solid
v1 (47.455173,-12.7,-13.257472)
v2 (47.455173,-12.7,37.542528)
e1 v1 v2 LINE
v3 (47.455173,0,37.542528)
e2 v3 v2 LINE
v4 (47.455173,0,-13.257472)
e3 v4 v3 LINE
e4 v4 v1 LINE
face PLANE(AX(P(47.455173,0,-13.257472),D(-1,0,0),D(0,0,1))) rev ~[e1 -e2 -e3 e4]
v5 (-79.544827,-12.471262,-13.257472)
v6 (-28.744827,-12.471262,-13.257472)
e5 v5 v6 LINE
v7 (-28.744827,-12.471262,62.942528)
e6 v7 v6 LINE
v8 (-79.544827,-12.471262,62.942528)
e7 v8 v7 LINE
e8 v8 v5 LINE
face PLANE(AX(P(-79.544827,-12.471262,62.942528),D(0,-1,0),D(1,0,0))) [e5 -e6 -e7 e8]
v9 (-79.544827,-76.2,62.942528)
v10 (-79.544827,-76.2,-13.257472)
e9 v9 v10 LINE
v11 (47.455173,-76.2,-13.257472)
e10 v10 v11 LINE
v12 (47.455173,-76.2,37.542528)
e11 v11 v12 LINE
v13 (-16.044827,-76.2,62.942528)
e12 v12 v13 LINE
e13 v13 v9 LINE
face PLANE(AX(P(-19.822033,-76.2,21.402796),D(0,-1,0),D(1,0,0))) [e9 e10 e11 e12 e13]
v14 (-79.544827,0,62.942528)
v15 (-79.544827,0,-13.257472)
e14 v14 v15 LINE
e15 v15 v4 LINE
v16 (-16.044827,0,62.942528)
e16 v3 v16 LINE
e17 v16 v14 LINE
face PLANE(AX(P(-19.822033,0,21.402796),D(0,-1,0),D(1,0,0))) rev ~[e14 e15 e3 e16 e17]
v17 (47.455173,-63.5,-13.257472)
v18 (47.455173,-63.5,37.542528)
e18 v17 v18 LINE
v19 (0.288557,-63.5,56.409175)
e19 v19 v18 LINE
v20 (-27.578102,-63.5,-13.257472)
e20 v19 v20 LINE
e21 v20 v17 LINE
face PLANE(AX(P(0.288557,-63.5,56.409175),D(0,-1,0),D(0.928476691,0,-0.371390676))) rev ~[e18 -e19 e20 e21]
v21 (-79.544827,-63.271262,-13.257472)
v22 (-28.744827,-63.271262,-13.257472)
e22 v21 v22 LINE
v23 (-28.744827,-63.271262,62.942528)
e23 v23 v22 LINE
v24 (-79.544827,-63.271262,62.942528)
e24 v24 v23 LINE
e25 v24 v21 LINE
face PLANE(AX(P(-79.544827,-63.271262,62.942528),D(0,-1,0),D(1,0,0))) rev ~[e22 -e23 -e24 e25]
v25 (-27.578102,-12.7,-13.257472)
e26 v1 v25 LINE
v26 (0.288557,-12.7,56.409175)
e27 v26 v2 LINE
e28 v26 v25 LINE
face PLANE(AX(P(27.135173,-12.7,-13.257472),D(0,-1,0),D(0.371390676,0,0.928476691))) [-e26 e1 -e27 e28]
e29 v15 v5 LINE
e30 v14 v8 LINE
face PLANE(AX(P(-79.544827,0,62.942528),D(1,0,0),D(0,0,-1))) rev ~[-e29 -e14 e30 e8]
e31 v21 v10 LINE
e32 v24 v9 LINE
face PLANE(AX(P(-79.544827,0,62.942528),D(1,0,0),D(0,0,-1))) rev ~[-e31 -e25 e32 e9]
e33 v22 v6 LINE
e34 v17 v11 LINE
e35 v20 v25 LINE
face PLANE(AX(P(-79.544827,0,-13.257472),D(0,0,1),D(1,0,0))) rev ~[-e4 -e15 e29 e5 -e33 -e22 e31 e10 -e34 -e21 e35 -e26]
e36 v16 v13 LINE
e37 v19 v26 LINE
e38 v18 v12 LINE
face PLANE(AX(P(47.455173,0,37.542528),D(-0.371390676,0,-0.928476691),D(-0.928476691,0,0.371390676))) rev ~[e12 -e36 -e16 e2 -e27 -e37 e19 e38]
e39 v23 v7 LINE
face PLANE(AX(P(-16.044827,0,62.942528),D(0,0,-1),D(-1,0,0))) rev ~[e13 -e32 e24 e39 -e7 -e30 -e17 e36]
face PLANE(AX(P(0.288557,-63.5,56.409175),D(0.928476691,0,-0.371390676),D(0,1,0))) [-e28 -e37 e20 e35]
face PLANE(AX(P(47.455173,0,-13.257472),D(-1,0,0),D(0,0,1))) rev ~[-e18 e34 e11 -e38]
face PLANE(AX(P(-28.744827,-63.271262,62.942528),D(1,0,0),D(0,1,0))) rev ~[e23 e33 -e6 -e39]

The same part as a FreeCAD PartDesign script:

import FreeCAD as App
import Part
import Sketcher
Q = App.Units.Quantity


def add_polygon(sketch, points):
    """Adds a closed chain of lines whose ends are joined by coincident constraints."""
    first, n = sketch.GeometryCount, len(points)
    for a, b in zip(points, points[1:] + points[:1]):
        sketch.addGeometry(Part.LineSegment(App.Vector(*a, 0), App.Vector(*b, 0)), False)
    for i in range(n):
        sketch.addConstraint(Sketcher.Constraint("Coincident", first + i, 2, first + (i + 1) % n, 1))

doc = App.newDocument("Part")
params = doc.addObject("Spreadsheet::Sheet", "Params")
for row, (alias, value) in enumerate([
    ("sketch1_width", "5 in"),
    ("sketch1_height", "3 in"),
    ("sketch1_height2", "2 in"),
    ("sketch1_width2", "2.5 in"),
    ("pad1_length", "3 in"),
    ("sketch2_width", "2 in"),
    ("pocket1_length", "3.71 in"),
    ("sketch3_width", "2 in"),
    ("pocket2_length", "1.64 in"),
    ("sketch4_width", "2 in"),
    ("pocket3_length", "3.47 in"),
], start=1):
    params.set(f"A{row}", alias)
    params.set(f"B{row}", "=" + value)
    params.setAlias(f"B{row}", alias)

body = doc.addObject("PartDesign::Body", "Body")

sketch1 = doc.addObject("Sketcher::SketchObject", "Sketch")
body.addObject(sketch1)
sketch1.AttachmentSupport = (doc.XZ_Plane, [""])
sketch1.MapMode = "FlatFace"
add_polygon(sketch1, [(-80, 63), (-80, -13), (47, -13), (47, 38), (-16, 63)])
sketch1.addConstraint(Sketcher.Constraint("Vertical", 0))
sketch1.addConstraint(Sketcher.Constraint("Horizontal", 1))
sketch1.addConstraint(Sketcher.Constraint("Vertical", 2))
sketch1.addConstraint(Sketcher.Constraint("Horizontal", 4))
sketch1.addConstraint(Sketcher.Constraint("DistanceX", 1, 1, 1, 2, Q("5 in")))
sketch1.addConstraint(Sketcher.Constraint("DistanceY", 0, 2, 0, 1, Q("3 in")))
sketch1.addConstraint(Sketcher.Constraint("DistanceY", 2, 1, 2, 2, Q("2 in")))
sketch1.addConstraint(Sketcher.Constraint("DistanceX", 4, 2, 4, 1, Q("2.5 in")))
sketch1.addConstraint(Sketcher.Constraint("DistanceY", 0, 2, -1, 1, Q("13.257472 mm")))
sketch1.addConstraint(Sketcher.Constraint("DistanceX", 0, 2, -1, 1, Q("79.544827 mm")))
sketch1.setExpression("Constraints[9]", "Params.sketch1_width")
sketch1.setExpression("Constraints[10]", "Params.sketch1_height")
sketch1.setExpression("Constraints[11]", "Params.sketch1_height2")
sketch1.setExpression("Constraints[12]", "Params.sketch1_width2")
pad1 = doc.addObject("PartDesign::Pad", "Pad")
body.addObject(pad1)
pad1.Profile = sketch1
pad1.setExpression("Length", "Params.pad1_length")

sketch2 = doc.addObject("Sketcher::SketchObject", "Sketch001")
body.addObject(sketch2)
sketch2.Placement = App.Placement(App.Vector(19.49124, 0, 48.728101), App.Rotation(App.Vector(0.928476691, 0, -0.371390676), App.Vector(0, 1, 0), App.Vector(0.371390676, 0, 0.928476691), "ZXY"))
add_polygon(sketch2, [(-21, -13), (-21, -63), (30, -63), (30, -13)])
sketch2.addConstraint(Sketcher.Constraint("Vertical", 0))
sketch2.addConstraint(Sketcher.Constraint("Horizontal", 1))
sketch2.addConstraint(Sketcher.Constraint("Vertical", 2))
sketch2.addConstraint(Sketcher.Constraint("Horizontal", 3))
sketch2.addConstraint(Sketcher.Constraint("Equal", 3, 0))
sketch2.addConstraint(Sketcher.Constraint("DistanceX", 1, 1, 1, 2, Q("2 in")))
sketch2.addConstraint(Sketcher.Constraint("DistanceY", 0, 2, -1, 1, Q("2.5 in")))
sketch2.addConstraint(Sketcher.Constraint("DistanceX", 0, 2, -1, 1, Q("20.681923 mm")))
sketch2.setExpression("Constraints[9]", "Params.sketch2_width")
pocket1 = doc.addObject("PartDesign::Pocket", "Pocket")
body.addObject(pocket1)
pocket1.Profile = sketch2
pocket1.setExpression("Length", "Params.pocket1_length")

sketch3 = doc.addObject("Sketcher::SketchObject", "Sketch002")
body.addObject(sketch3)
sketch3.Placement = App.Placement(App.Vector(27.963932, 0, -11.185573), App.Rotation(App.Vector(0, -1, 0), App.Vector(0.371390676, 0, 0.928476691), App.Vector(-0.928476691, 0, 0.371390676), "ZXY"))
add_polygon(sketch3, [(13, 133), (13, -2), (64, -2), (64, 133)])
sketch3.addConstraint(Sketcher.Constraint("Vertical", 0))
sketch3.addConstraint(Sketcher.Constraint("Horizontal", 1))
sketch3.addConstraint(Sketcher.Constraint("Vertical", 2))
sketch3.addConstraint(Sketcher.Constraint("Horizontal", 3))
sketch3.addConstraint(Sketcher.Constraint("DistanceX", 1, 1, 1, 2, Q("2 in")))
sketch3.addConstraint(Sketcher.Constraint("DistanceX", -1, 1, 0, 2, Q("0.5 in")))
sketch3.addConstraint(Sketcher.Constraint("DistanceY", 0, 2, 0, 1, Q("134.939785 mm")))
sketch3.addConstraint(Sketcher.Constraint("DistanceY", -1, 1, 2, 2, Q("132.708281 mm")))
sketch3.setExpression("Constraints[8]", "Params.sketch3_width")
pocket2 = doc.addObject("PartDesign::Pocket", "Pocket001")
body.addObject(pocket2)
pocket2.Profile = sketch3
pocket2.setExpression("Length", "Params.pocket2_length")

sketch4 = doc.addObject("Sketcher::SketchObject", "Sketch003")
body.addObject(sketch4)
sketch4.AttachmentSupport = (doc.XY_Plane, [""])
sketch4.MapMode = "FlatFace"
sketch4.AttachmentOffset = App.Placement(App.Vector(0, 0, 62.942528), App.Rotation())
add_polygon(sketch4, [(-80, -12), (-80, -63), (-29, -63), (-29, -12)])
sketch4.addConstraint(Sketcher.Constraint("Vertical", 0))
sketch4.addConstraint(Sketcher.Constraint("Horizontal", 1))
sketch4.addConstraint(Sketcher.Constraint("Vertical", 2))
sketch4.addConstraint(Sketcher.Constraint("Horizontal", 3))
sketch4.addConstraint(Sketcher.Constraint("Equal", 3, 0))
sketch4.addConstraint(Sketcher.Constraint("DistanceX", 1, 1, 1, 2, Q("2 in")))
sketch4.addConstraint(Sketcher.Constraint("DistanceY", 0, 2, -1, 1, Q("63.271262 mm")))
sketch4.addConstraint(Sketcher.Constraint("DistanceX", 0, 2, -1, 1, Q("79.544827 mm")))
sketch4.setExpression("Constraints[9]", "Params.sketch4_width")
pocket3 = doc.addObject("PartDesign::Pocket", "Pocket002")
body.addObject(pocket3)
pocket3.Profile = sketch4
pocket3.setExpression("Length", "Params.pocket3_length")

doc.recompute()
